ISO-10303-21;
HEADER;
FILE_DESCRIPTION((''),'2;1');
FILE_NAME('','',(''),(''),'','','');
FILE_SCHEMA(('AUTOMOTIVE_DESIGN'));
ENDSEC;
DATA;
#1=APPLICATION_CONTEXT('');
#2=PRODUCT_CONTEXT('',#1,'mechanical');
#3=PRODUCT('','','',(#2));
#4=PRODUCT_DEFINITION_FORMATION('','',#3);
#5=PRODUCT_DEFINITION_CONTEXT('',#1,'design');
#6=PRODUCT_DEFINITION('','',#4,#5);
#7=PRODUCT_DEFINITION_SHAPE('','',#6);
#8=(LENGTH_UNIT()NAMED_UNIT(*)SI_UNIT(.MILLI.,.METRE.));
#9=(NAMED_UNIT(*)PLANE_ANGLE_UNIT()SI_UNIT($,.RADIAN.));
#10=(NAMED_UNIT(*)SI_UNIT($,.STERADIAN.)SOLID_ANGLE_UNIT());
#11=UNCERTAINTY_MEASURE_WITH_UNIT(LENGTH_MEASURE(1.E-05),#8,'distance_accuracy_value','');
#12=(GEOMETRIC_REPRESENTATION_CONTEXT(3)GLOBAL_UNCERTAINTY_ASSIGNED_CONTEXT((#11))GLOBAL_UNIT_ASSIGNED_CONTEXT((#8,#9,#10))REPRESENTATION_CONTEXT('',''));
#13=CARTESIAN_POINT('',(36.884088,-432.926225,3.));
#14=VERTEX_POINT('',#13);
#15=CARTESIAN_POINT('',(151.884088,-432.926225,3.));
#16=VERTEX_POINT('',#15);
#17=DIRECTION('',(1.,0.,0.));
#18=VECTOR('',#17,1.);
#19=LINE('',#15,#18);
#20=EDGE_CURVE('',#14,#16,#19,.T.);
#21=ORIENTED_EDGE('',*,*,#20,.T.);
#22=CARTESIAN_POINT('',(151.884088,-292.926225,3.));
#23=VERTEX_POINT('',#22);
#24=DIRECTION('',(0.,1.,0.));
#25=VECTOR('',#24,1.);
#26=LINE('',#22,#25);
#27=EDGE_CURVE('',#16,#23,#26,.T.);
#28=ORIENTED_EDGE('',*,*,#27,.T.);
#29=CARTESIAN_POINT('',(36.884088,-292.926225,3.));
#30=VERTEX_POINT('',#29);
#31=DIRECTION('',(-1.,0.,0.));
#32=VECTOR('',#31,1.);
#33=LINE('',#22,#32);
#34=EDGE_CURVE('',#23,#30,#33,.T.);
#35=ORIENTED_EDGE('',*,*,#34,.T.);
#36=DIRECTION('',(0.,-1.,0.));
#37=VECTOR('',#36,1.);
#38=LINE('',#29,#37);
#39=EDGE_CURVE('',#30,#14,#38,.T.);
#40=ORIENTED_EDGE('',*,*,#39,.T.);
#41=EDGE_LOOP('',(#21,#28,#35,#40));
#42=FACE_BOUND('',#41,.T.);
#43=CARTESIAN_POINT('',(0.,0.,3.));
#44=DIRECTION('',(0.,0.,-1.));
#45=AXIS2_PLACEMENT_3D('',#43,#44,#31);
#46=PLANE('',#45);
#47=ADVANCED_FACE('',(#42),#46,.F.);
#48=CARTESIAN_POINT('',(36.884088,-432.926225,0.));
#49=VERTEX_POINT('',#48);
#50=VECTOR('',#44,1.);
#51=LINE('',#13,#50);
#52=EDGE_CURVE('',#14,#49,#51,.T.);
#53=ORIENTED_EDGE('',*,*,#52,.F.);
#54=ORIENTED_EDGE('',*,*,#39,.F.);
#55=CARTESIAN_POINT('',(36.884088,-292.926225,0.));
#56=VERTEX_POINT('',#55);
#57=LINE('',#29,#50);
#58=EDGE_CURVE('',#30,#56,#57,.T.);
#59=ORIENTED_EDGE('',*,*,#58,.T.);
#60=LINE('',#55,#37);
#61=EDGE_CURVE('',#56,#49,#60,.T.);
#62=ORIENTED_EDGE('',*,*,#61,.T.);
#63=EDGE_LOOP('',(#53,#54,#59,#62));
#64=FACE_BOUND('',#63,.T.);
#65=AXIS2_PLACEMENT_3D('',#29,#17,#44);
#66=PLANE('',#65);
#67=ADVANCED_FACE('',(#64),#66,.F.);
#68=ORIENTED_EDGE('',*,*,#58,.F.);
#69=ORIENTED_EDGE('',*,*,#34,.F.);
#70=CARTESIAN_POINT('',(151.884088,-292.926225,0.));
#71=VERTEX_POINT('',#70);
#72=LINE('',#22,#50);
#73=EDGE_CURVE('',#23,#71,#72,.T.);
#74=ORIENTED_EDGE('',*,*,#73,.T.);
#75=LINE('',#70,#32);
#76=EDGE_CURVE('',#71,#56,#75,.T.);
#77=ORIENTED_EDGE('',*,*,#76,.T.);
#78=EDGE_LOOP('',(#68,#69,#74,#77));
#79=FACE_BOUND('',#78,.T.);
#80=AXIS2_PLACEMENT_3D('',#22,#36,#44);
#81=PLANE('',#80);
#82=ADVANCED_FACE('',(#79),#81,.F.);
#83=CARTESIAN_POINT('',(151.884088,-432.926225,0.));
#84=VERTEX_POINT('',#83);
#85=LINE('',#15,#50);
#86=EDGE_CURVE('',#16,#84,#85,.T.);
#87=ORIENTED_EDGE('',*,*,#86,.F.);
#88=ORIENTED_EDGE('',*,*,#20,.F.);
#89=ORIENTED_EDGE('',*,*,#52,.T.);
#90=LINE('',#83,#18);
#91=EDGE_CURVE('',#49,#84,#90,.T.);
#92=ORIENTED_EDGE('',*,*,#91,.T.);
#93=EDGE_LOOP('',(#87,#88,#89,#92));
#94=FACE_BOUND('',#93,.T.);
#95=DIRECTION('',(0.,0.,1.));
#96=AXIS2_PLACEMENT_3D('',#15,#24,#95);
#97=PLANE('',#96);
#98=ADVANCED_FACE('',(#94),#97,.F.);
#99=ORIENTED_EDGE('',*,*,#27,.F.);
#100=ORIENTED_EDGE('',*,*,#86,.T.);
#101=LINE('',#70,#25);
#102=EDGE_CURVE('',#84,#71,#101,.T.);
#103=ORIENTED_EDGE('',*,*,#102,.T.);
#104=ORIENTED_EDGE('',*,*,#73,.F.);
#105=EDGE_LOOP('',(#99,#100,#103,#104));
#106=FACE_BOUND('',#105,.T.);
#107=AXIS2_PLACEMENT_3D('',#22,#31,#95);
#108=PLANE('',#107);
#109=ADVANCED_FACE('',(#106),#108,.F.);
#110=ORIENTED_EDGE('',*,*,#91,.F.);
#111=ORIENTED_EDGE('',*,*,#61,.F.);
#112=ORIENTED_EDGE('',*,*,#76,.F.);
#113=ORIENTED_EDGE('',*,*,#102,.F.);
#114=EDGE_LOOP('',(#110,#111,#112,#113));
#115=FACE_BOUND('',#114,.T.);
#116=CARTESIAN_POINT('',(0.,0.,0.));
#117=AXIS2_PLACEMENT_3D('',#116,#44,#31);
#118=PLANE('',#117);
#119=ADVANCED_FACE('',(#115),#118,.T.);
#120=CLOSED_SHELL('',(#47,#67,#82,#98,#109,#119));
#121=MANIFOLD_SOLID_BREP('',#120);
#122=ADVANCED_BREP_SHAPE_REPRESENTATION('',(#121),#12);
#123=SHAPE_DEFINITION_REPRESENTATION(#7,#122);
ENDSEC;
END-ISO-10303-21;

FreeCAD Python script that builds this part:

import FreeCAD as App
import Part
import Sketcher
Q = App.Units.Quantity

doc = App.newDocument("Part")
params = doc.addObject("Spreadsheet::Sheet", "Params")
for row, (alias, value) in enumerate([
    ("sketch1_width", "115 mm"),
    ("sketch1_height", "140 mm"),
    ("pad1_length", "3 mm"),
], start=1):
    params.set(f"A{row}", alias)
    params.set(f"B{row}", "=" + value)
    params.setAlias(f"B{row}", alias)

body = doc.addObject("PartDesign::Body", "Body")

# Sketch on XY plane
sketch1 = body.newObject("Sketcher::SketchObject", "Sketch")
sketch1.AttachmentSupport = (doc.getObject("XY_Plane"), [""])
sketch1.MapMode = "FlatFace"
sketch1.addGeometry([
    Part.LineSegment(App.Vector(36.884088, -292.926225, 0), App.Vector(36.884088, -432.926225, 0)),
    Part.LineSegment(App.Vector(36.884088, -432.926225, 0), App.Vector(151.884088, -432.926225, 0)),
    Part.LineSegment(App.Vector(151.884088, -432.926225, 0), App.Vector(151.884088, -292.926225, 0)),
    Part.LineSegment(App.Vector(151.884088, -292.926225, 0), App.Vector(36.884088, -292.926225, 0)),
], False)
sketch1.addConstraint([
    Sketcher.Constraint("Coincident", 0, 2, 1, 1),
    Sketcher.Constraint("Coincident", 1, 2, 2, 1),
    Sketcher.Constraint("Coincident", 2, 2, 3, 1),
    Sketcher.Constraint("Coincident", 3, 2, 0, 1),
    Sketcher.Constraint("Vertical", 0),
    Sketcher.Constraint("Horizontal", 1),
    Sketcher.Constraint("Vertical", 2),
    Sketcher.Constraint("Horizontal", 3),
    Sketcher.Constraint("DistanceX", 1, 1, 1, 2, Q("115 mm")),
    Sketcher.Constraint("DistanceY", 0, 2, 0, 1, Q("140 mm")),
    Sketcher.Constraint("DistanceX", -1, 1, 0, 2, Q("36.884088 mm")),
    Sketcher.Constraint("DistanceY", 0, 2, -1, 1, Q("432.926225 mm")),
])
sketch1.setExpression("Constraints[8]", "Params.sketch1_width")
sketch1.setExpression("Constraints[9]", "Params.sketch1_height")
pad1 = body.newObject("PartDesign::Pad", "Pad")
pad1.Profile = sketch1
pad1.setExpression("Length", "Params.pad1_length")

doc.recompute()
